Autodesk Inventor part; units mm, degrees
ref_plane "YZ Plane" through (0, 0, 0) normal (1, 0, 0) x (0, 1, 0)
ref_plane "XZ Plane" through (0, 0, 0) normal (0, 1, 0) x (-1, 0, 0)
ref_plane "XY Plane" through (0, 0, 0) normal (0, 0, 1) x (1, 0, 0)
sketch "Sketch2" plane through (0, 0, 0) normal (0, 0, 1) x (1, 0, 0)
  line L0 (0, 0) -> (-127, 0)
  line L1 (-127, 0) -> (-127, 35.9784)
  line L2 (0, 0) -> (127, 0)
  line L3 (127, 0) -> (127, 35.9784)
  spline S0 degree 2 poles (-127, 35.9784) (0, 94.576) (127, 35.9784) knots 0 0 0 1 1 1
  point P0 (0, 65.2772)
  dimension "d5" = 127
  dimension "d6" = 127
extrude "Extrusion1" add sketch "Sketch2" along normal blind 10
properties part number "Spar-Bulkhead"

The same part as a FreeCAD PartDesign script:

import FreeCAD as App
import Part
import Sketcher
Q = App.Units.Quantity

doc = App.newDocument("Part")
body = doc.addObject("PartDesign::Body", "Body")

# Sketch on XY plane
sketch1 = body.newObject("Sketcher::SketchObject", "Sketch")
sketch1.AttachmentSupport = (doc.getObject("XY_Plane"), [""])
sketch1.MapMode = "FlatFace"
sketch1.addGeometry([
    Part.LineSegment(App.Vector(-127, 0, 0), App.Vector(127, 0, 0)),
    Part.LineSegment(App.Vector(127, 0, 0), App.Vector(127, 35.9784, 0)),
    Part.BSplineCurve([App.Vector(-127, 35.9784, 0), App.Vector(0, 94.576, 0), App.Vector(127, 35.9784, 0)], [3, 3], [0, 1], False, 2, [1, 1, 1], False),
    Part.LineSegment(App.Vector(-127, 35.9784, 0), App.Vector(-127, 0, 0)),
], False)
sketch1.addConstraint([
    Sketcher.Constraint("Block", 2),
    Sketcher.Constraint("Coincident", 0, 2, 1, 1),
    Sketcher.Constraint("Coincident", 1, 2, 2, 2),
    Sketcher.Constraint("Coincident", 2, 1, 3, 1),
    Sketcher.Constraint("Coincident", 3, 2, 0, 1),
    Sketcher.Constraint("Horizontal", 0),
    Sketcher.Constraint("Vertical", 1),
    Sketcher.Constraint("Vertical", 3),
    Sketcher.Constraint("PointOnObject", 0, 2, -1),
])
pad1 = body.newObject("PartDesign::Pad", "Pad")
pad1.Profile = sketch1
pad1.Length = Q("0.3937008 in")

doc.recompute()
